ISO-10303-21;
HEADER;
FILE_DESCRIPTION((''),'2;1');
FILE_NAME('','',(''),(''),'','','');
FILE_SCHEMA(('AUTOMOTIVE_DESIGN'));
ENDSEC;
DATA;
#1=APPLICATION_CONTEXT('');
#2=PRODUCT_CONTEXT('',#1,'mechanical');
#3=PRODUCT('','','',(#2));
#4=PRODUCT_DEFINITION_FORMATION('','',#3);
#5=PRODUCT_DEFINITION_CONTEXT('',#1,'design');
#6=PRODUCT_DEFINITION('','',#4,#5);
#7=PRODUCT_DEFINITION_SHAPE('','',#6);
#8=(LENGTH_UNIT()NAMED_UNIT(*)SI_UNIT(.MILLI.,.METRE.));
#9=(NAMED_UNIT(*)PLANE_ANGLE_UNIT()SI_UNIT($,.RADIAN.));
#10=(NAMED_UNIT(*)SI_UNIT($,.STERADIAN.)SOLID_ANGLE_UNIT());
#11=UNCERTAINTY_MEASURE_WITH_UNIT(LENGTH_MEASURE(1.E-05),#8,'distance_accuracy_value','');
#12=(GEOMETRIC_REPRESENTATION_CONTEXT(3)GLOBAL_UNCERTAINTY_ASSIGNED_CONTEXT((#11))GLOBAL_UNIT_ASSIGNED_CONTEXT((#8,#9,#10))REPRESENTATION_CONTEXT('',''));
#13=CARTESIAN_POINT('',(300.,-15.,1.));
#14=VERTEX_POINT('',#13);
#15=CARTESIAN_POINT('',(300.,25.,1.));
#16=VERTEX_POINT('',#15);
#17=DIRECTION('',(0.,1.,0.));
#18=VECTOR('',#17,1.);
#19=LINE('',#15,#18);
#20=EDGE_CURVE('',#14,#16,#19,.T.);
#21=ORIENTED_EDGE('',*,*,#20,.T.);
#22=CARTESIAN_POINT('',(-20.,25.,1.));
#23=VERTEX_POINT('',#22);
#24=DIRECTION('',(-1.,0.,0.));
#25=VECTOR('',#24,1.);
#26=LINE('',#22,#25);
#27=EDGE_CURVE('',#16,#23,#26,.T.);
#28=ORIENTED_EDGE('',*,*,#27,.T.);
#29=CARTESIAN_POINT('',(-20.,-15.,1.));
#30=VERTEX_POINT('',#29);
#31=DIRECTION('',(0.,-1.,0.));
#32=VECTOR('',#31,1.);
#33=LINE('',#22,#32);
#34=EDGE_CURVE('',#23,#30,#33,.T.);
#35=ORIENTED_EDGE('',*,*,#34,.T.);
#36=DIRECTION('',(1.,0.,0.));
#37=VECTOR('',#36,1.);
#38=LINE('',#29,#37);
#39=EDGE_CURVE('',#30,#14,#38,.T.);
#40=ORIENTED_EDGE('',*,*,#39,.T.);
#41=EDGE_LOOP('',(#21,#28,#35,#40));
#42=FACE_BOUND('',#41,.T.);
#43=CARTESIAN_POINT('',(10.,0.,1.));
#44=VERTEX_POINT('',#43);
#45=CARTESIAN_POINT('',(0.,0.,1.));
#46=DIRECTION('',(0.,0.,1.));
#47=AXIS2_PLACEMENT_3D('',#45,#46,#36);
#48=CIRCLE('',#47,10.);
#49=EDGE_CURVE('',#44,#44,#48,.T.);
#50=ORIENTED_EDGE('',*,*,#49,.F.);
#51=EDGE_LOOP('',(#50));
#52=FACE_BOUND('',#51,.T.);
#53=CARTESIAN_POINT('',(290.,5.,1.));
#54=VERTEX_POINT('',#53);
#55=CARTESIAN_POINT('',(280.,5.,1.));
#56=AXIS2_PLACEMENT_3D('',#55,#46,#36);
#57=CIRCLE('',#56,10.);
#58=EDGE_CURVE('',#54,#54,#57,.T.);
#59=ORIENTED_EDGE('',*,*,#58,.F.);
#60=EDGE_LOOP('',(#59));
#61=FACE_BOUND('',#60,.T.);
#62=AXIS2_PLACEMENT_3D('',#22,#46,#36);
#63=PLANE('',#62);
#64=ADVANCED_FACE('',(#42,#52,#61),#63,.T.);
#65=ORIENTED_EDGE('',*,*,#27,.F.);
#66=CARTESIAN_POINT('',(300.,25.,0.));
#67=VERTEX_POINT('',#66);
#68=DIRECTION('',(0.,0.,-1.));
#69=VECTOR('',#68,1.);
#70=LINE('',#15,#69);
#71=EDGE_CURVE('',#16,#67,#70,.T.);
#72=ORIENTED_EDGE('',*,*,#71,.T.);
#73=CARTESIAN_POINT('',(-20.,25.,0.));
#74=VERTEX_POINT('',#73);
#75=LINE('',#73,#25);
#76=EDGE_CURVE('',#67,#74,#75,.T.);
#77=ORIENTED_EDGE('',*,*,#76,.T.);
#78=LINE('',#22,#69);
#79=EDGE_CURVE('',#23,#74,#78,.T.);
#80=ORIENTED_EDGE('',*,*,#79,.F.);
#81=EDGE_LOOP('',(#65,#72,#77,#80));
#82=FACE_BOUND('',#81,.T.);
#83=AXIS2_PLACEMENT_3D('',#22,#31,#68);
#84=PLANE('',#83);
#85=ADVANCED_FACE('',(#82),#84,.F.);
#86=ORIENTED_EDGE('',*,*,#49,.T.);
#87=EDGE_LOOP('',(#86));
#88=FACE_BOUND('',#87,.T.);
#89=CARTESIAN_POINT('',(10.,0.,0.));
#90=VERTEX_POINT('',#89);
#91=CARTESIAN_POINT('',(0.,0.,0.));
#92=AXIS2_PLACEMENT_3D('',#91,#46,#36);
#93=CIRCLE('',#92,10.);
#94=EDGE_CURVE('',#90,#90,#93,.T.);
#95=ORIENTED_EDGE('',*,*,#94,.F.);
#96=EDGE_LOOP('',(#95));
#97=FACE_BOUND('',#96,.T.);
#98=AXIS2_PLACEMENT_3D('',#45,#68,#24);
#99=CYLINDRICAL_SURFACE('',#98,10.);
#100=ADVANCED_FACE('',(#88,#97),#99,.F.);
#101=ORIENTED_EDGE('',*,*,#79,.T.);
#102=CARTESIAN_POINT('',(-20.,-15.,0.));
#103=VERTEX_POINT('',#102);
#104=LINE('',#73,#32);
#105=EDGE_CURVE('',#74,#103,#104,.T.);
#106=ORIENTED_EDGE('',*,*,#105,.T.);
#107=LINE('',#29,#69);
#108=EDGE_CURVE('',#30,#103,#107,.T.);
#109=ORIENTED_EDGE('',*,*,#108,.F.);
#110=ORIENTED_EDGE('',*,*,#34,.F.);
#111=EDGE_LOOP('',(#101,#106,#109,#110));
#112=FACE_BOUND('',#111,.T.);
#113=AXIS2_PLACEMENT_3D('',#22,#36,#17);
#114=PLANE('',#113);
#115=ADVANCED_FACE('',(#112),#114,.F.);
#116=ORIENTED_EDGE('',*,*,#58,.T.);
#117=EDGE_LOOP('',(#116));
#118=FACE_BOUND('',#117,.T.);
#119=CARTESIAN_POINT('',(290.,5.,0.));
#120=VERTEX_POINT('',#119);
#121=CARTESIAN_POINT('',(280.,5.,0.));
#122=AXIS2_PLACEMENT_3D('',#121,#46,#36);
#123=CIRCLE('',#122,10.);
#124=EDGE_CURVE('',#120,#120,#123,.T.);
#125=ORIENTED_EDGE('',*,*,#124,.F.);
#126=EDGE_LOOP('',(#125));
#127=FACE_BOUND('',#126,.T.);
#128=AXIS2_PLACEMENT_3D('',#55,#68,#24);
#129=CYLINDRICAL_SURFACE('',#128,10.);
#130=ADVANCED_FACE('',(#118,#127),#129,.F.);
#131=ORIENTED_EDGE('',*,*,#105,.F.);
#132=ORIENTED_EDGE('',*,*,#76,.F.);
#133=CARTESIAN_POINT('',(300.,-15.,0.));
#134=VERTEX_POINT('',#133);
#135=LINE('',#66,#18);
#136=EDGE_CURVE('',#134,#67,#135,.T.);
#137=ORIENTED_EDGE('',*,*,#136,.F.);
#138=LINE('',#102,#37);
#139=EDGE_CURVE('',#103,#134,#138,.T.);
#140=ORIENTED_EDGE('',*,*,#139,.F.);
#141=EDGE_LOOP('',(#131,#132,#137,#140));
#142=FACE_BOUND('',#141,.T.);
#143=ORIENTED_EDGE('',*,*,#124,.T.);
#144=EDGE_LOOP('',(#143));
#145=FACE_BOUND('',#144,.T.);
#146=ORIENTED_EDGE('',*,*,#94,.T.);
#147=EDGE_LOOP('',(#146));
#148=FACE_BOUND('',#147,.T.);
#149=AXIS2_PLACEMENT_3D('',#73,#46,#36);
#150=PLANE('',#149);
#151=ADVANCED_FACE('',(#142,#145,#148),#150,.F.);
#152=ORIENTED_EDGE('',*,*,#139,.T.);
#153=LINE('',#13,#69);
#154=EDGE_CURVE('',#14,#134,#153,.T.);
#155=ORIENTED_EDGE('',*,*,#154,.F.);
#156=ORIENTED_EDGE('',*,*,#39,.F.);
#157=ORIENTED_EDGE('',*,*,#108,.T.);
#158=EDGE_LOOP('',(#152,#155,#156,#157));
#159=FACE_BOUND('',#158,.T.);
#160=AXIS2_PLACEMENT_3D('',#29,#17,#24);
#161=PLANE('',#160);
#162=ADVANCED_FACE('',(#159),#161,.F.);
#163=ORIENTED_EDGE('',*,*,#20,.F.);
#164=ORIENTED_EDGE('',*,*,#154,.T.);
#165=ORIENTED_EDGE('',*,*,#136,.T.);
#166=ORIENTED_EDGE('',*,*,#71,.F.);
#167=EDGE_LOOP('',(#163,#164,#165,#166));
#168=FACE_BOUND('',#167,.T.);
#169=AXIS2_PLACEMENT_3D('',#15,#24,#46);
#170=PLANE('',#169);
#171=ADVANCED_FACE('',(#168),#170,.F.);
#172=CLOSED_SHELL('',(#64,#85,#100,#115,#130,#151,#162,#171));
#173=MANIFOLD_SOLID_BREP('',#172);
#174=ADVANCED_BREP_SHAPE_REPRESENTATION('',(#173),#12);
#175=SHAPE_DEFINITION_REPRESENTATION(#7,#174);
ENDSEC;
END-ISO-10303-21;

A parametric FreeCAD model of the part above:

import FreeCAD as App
import Part
import Sketcher
from FreeCAD import Vector


def add_polygon(sketch, points):
    """Adds a closed chain of lines whose ends are joined by coincident constraints."""
    first, n = sketch.GeometryCount, len(points)
    for a, b in zip(points, points[1:] + points[:1]):
        sketch.addGeometry(Part.LineSegment(App.Vector(*a, 0), App.Vector(*b, 0)), False)
    for i in range(n):
        sketch.addConstraint(Sketcher.Constraint("Coincident", first + i, 2, first + (i + 1) % n, 1))

doc = App.newDocument("Part")
body = doc.addObject("PartDesign::Body", "Body")

sketch1 = body.newObject("Sketcher::SketchObject", "Sketch")
sketch1.AttachmentSupport = (doc.getObject("XY_Plane"), [""])
sketch1.MapMode = "FlatFace"
add_polygon(sketch1, [(-20, 25), (-20, -15), (300, -15), (300, 25)])
sketch1.addGeometry(Part.Circle(Vector(0, 0, 0), Vector(0, 0, 1), 10), False)
sketch1.addGeometry(Part.Circle(Vector(280, 5, 0), Vector(0, 0, 1), 10), False)
sketch1.addConstraint([
    Sketcher.Constraint("Vertical", 0),
    Sketcher.Constraint("Horizontal", 1),
    Sketcher.Constraint("Vertical", 2),
    Sketcher.Constraint("Horizontal", 3),
    Sketcher.Constraint("Coincident", 4, 3, -1, 1),
    Sketcher.Constraint("Equal", 4, 5),
    Sketcher.Constraint("Diameter", 4, 20.0),
    Sketcher.Constraint("DistanceX", 1, 1, 1, 2, 320.0),
    Sketcher.Constraint("DistanceY", 0, 2, 0, 1, 40.0),
    Sketcher.Constraint("DistanceX", -1, 1, 5, 3, 280.0),
    Sketcher.Constraint("DistanceY", -1, 1, 5, 3, 5.0),
    Sketcher.Constraint("DistanceX", 0, 2, -1, 1, 20.0),
    Sketcher.Constraint("DistanceY", 0, 2, -1, 1, 15.0),
])
pad1 = body.newObject("PartDesign::Pad", "Pad")
pad1.Profile = sketch1
pad1.Length = 1

doc.recompute()
